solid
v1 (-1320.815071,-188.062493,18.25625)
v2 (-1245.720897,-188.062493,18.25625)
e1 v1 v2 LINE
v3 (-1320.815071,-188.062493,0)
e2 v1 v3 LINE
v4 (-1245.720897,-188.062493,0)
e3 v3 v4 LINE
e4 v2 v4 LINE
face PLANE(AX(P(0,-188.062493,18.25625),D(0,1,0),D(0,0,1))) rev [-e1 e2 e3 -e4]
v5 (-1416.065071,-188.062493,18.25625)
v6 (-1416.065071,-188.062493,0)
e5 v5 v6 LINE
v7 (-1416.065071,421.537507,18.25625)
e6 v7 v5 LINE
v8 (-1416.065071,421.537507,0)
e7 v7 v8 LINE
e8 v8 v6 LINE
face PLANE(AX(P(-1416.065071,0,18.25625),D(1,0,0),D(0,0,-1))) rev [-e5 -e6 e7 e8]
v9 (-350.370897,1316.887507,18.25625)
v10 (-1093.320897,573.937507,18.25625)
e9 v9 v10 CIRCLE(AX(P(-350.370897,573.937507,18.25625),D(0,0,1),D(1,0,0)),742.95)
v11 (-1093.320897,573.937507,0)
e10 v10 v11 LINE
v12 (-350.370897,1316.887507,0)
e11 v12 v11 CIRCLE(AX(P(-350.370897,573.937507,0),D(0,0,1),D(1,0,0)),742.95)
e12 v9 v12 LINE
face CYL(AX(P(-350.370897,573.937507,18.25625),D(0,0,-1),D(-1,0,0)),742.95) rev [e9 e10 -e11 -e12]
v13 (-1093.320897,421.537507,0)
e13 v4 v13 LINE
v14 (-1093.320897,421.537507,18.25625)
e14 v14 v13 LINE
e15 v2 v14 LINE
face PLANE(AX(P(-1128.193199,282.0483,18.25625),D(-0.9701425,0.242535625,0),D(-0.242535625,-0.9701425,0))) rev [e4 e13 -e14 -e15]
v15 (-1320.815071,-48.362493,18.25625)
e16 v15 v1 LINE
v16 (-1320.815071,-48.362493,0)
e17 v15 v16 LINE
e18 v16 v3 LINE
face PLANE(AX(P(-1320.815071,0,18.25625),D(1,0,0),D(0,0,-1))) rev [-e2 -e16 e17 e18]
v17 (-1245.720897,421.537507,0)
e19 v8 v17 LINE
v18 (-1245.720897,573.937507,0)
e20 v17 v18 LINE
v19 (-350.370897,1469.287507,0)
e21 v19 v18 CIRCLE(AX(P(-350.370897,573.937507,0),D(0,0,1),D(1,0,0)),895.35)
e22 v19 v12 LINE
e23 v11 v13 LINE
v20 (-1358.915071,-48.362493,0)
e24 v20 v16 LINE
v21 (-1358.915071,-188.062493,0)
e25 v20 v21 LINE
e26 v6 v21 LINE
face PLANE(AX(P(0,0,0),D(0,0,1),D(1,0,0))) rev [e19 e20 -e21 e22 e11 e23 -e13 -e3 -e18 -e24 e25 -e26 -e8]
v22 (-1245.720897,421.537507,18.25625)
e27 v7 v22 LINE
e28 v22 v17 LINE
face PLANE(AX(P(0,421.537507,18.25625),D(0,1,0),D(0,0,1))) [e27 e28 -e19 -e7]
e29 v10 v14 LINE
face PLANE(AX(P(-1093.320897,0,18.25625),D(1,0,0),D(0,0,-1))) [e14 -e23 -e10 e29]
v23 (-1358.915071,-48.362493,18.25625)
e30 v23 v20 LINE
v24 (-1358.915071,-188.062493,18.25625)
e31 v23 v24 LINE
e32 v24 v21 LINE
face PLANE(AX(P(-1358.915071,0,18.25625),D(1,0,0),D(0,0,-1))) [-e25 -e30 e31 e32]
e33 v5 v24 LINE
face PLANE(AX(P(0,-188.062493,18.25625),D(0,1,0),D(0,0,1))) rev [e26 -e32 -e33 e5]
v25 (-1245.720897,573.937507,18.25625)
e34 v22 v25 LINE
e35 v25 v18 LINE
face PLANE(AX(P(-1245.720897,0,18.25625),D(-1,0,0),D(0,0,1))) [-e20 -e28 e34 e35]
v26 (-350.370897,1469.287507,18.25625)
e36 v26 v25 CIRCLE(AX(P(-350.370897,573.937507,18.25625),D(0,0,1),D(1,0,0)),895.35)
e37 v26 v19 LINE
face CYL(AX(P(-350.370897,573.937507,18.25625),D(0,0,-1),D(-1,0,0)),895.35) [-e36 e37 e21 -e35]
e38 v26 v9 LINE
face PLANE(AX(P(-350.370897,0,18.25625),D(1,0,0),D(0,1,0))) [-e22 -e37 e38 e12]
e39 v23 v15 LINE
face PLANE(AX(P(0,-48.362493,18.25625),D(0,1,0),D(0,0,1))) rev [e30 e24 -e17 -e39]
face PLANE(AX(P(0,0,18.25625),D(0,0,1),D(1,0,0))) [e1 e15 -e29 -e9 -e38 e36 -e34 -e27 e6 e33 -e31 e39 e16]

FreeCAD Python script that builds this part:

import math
import FreeCAD as App
import Part
import Sketcher
from FreeCAD import Vector
Q = App.Units.Quantity

doc = App.newDocument("Part")
params = doc.addObject("Spreadsheet::Sheet", "Params")
for row, (alias, value) in enumerate([
    ("sketch1_height", "24 in"),
    ("sketch1_height2", "6 in"),
    ("sketch1_radius", "29.25 in"),
    ("sketch1_width", "1.5 in"),
    ("sketch1_height3", "5.5 in"),
    ("pad1_length", "0.71875 in"),
], start=1):
    params.set(f"A{row}", alias)
    params.set(f"B{row}", "=" + value)
    params.setAlias(f"B{row}", alias)

body = doc.addObject("PartDesign::Body", "Body")

sketch1 = body.newObject("Sketcher::SketchObject", "Sketch")
sketch1.AttachmentSupport = (doc.getObject("XY_Plane"), [""])
sketch1.MapMode = "FlatFace"
sketch1.addGeometry(Part.LineSegment(Vector(-1416.065071, 421.537507, 0), Vector(-1416.065071, -188.062493, 0)), False)
sketch1.addGeometry(Part.LineSegment(Vector(-1416.065071, -188.062493, 0), Vector(-1358.915071, -188.062493, 0)), False)
sketch1.addGeometry(Part.LineSegment(Vector(-1358.915071, -188.062493, 0), Vector(-1358.915071, -48.362493, 0)), False)
sketch1.addGeometry(Part.LineSegment(Vector(-1358.915071, -48.362493, 0), Vector(-1320.815071, -48.362493, 0)), False)
sketch1.addGeometry(Part.LineSegment(Vector(-1320.815071, -48.362493, 0), Vector(-1320.815071, -188.062493, 0)), False)
sketch1.addGeometry(Part.LineSegment(Vector(-1320.815071, -188.062493, 0), Vector(-1245.720897, -188.062493, 0)), False)
sketch1.addGeometry(Part.LineSegment(Vector(-1245.720897, -188.062493, 0), Vector(-1093.320897, 421.537507, 0)), False)
sketch1.addGeometry(Part.LineSegment(Vector(-1093.320897, 421.537507, 0), Vector(-1093.320897, 573.937507, 0)), False)
sketch1.addGeometry(Part.ArcOfCircle(Part.Circle(Vector(-350.370897, 573.937507, 0), Vector(0, 0, 1), 742.95), math.radians(90), math.radians(180)), False)
sketch1.addGeometry(Part.LineSegment(Vector(-350.370897, 1316.887507, 0), Vector(-350.370897, 1469.287507, 0)), False)
sketch1.addGeometry(Part.ArcOfCircle(Part.Circle(Vector(-350.370897, 573.937507, 0), Vector(0, 0, 1), 895.35), math.radians(90), math.radians(180)), False)
sketch1.addGeometry(Part.LineSegment(Vector(-1245.720897, 573.937507, 0), Vector(-1245.720897, 421.537507, 0)), False)
sketch1.addGeometry(Part.LineSegment(Vector(-1245.720897, 421.537507, 0), Vector(-1416.065071, 421.537507, 0)), False)
sketch1.addConstraint(Sketcher.Constraint("Coincident", 0, 2, 1, 1))
sketch1.addConstraint(Sketcher.Constraint("Coincident", 1, 2, 2, 1))
sketch1.addConstraint(Sketcher.Constraint("Coincident", 2, 2, 3, 1))
sketch1.addConstraint(Sketcher.Constraint("Coincident", 3, 2, 4, 1))
sketch1.addConstraint(Sketcher.Constraint("Coincident", 4, 2, 5, 1))
sketch1.addConstraint(Sketcher.Constraint("Coincident", 5, 2, 6, 1))
sketch1.addConstraint(Sketcher.Constraint("Coincident", 6, 2, 7, 1))
sketch1.addConstraint(Sketcher.Constraint("Tangent", 7, 2, 8, 2))
sketch1.addConstraint(Sketcher.Constraint("Coincident", 8, 1, 9, 1))
sketch1.addConstraint(Sketcher.Constraint("Coincident", 9, 2, 10, 1))
sketch1.addConstraint(Sketcher.Constraint("Tangent", 10, 2, 11, 1))
sketch1.addConstraint(Sketcher.Constraint("Coincident", 11, 2, 12, 1))
sketch1.addConstraint(Sketcher.Constraint("Coincident", 12, 2, 0, 1))
sketch1.addConstraint(Sketcher.Constraint("Vertical", 0))
sketch1.addConstraint(Sketcher.Constraint("Horizontal", 1))
sketch1.addConstraint(Sketcher.Constraint("Vertical", 2))
sketch1.addConstraint(Sketcher.Constraint("Horizontal", 3))
sketch1.addConstraint(Sketcher.Constraint("Vertical", 4))
sketch1.addConstraint(Sketcher.Constraint("Horizontal", 5))
sketch1.addConstraint(Sketcher.Constraint("Vertical", 7))
sketch1.addConstraint(Sketcher.Constraint("Vertical", 9))
sketch1.addConstraint(Sketcher.Constraint("Vertical", 11))
sketch1.addConstraint(Sketcher.Constraint("Horizontal", 12))
sketch1.addConstraint(Sketcher.Constraint("Coincident", 10, 3, 8, 3))
sketch1.addConstraint(Sketcher.Constraint("Horizontal", 1, 2, 4, 2))
sketch1.addConstraint(Sketcher.Constraint("Horizontal", 6, 2, 11, 2))
sketch1.addConstraint(Sketcher.Constraint("Vertical", 5, 2, 10, 2))
sketch1.addConstraint(Sketcher.Constraint("Equal", 7, 9))
sketch1.addConstraint(Sketcher.Constraint("DistanceY", 0, 2, 0, 1, Q("24 in")))
sketch1.addConstraint(Sketcher.Constraint("DistanceY", 7, 1, 7, 2, Q("6 in")))
sketch1.addConstraint(Sketcher.Constraint("Radius", 8, Q("29.25 in")))
sketch1.addConstraint(Sketcher.Constraint("DistanceX", 3, 1, 3, 2, Q("1.5 in")))
sketch1.addConstraint(Sketcher.Constraint("DistanceY", 2, 1, 2, 2, Q("5.5 in")))
sketch1.addConstraint(Sketcher.Constraint("DistanceX", 1, 1, 1, 2, Q("2.25 in")))
sketch1.addConstraint(Sketcher.Constraint("DistanceX", 7, 2, 9, 2, Q("29.25 in")))
sketch1.addConstraint(Sketcher.Constraint("DistanceX", 5, 1, 5, 2, Q("75.094174 mm")))
sketch1.addConstraint(Sketcher.Constraint("DistanceX", 0, 2, -1, 1, Q("1416.065071 mm")))
sketch1.addConstraint(Sketcher.Constraint("DistanceY", -1, 1, 8, 3, Q("573.937507 mm")))
sketch1.setExpression("Constraints[28]", "Params.sketch1_height")
sketch1.setExpression("Constraints[29]", "Params.sketch1_height2")
sketch1.setExpression("Constraints[30]", "Params.sketch1_radius")
sketch1.setExpression("Constraints[31]", "Params.sketch1_width")
sketch1.setExpression("Constraints[32]", "Params.sketch1_height3")
pad1 = body.newObject("PartDesign::Pad", "Pad")
pad1.Profile = sketch1
pad1.setExpression("Length", "Params.pad1_length")

doc.recompute()
